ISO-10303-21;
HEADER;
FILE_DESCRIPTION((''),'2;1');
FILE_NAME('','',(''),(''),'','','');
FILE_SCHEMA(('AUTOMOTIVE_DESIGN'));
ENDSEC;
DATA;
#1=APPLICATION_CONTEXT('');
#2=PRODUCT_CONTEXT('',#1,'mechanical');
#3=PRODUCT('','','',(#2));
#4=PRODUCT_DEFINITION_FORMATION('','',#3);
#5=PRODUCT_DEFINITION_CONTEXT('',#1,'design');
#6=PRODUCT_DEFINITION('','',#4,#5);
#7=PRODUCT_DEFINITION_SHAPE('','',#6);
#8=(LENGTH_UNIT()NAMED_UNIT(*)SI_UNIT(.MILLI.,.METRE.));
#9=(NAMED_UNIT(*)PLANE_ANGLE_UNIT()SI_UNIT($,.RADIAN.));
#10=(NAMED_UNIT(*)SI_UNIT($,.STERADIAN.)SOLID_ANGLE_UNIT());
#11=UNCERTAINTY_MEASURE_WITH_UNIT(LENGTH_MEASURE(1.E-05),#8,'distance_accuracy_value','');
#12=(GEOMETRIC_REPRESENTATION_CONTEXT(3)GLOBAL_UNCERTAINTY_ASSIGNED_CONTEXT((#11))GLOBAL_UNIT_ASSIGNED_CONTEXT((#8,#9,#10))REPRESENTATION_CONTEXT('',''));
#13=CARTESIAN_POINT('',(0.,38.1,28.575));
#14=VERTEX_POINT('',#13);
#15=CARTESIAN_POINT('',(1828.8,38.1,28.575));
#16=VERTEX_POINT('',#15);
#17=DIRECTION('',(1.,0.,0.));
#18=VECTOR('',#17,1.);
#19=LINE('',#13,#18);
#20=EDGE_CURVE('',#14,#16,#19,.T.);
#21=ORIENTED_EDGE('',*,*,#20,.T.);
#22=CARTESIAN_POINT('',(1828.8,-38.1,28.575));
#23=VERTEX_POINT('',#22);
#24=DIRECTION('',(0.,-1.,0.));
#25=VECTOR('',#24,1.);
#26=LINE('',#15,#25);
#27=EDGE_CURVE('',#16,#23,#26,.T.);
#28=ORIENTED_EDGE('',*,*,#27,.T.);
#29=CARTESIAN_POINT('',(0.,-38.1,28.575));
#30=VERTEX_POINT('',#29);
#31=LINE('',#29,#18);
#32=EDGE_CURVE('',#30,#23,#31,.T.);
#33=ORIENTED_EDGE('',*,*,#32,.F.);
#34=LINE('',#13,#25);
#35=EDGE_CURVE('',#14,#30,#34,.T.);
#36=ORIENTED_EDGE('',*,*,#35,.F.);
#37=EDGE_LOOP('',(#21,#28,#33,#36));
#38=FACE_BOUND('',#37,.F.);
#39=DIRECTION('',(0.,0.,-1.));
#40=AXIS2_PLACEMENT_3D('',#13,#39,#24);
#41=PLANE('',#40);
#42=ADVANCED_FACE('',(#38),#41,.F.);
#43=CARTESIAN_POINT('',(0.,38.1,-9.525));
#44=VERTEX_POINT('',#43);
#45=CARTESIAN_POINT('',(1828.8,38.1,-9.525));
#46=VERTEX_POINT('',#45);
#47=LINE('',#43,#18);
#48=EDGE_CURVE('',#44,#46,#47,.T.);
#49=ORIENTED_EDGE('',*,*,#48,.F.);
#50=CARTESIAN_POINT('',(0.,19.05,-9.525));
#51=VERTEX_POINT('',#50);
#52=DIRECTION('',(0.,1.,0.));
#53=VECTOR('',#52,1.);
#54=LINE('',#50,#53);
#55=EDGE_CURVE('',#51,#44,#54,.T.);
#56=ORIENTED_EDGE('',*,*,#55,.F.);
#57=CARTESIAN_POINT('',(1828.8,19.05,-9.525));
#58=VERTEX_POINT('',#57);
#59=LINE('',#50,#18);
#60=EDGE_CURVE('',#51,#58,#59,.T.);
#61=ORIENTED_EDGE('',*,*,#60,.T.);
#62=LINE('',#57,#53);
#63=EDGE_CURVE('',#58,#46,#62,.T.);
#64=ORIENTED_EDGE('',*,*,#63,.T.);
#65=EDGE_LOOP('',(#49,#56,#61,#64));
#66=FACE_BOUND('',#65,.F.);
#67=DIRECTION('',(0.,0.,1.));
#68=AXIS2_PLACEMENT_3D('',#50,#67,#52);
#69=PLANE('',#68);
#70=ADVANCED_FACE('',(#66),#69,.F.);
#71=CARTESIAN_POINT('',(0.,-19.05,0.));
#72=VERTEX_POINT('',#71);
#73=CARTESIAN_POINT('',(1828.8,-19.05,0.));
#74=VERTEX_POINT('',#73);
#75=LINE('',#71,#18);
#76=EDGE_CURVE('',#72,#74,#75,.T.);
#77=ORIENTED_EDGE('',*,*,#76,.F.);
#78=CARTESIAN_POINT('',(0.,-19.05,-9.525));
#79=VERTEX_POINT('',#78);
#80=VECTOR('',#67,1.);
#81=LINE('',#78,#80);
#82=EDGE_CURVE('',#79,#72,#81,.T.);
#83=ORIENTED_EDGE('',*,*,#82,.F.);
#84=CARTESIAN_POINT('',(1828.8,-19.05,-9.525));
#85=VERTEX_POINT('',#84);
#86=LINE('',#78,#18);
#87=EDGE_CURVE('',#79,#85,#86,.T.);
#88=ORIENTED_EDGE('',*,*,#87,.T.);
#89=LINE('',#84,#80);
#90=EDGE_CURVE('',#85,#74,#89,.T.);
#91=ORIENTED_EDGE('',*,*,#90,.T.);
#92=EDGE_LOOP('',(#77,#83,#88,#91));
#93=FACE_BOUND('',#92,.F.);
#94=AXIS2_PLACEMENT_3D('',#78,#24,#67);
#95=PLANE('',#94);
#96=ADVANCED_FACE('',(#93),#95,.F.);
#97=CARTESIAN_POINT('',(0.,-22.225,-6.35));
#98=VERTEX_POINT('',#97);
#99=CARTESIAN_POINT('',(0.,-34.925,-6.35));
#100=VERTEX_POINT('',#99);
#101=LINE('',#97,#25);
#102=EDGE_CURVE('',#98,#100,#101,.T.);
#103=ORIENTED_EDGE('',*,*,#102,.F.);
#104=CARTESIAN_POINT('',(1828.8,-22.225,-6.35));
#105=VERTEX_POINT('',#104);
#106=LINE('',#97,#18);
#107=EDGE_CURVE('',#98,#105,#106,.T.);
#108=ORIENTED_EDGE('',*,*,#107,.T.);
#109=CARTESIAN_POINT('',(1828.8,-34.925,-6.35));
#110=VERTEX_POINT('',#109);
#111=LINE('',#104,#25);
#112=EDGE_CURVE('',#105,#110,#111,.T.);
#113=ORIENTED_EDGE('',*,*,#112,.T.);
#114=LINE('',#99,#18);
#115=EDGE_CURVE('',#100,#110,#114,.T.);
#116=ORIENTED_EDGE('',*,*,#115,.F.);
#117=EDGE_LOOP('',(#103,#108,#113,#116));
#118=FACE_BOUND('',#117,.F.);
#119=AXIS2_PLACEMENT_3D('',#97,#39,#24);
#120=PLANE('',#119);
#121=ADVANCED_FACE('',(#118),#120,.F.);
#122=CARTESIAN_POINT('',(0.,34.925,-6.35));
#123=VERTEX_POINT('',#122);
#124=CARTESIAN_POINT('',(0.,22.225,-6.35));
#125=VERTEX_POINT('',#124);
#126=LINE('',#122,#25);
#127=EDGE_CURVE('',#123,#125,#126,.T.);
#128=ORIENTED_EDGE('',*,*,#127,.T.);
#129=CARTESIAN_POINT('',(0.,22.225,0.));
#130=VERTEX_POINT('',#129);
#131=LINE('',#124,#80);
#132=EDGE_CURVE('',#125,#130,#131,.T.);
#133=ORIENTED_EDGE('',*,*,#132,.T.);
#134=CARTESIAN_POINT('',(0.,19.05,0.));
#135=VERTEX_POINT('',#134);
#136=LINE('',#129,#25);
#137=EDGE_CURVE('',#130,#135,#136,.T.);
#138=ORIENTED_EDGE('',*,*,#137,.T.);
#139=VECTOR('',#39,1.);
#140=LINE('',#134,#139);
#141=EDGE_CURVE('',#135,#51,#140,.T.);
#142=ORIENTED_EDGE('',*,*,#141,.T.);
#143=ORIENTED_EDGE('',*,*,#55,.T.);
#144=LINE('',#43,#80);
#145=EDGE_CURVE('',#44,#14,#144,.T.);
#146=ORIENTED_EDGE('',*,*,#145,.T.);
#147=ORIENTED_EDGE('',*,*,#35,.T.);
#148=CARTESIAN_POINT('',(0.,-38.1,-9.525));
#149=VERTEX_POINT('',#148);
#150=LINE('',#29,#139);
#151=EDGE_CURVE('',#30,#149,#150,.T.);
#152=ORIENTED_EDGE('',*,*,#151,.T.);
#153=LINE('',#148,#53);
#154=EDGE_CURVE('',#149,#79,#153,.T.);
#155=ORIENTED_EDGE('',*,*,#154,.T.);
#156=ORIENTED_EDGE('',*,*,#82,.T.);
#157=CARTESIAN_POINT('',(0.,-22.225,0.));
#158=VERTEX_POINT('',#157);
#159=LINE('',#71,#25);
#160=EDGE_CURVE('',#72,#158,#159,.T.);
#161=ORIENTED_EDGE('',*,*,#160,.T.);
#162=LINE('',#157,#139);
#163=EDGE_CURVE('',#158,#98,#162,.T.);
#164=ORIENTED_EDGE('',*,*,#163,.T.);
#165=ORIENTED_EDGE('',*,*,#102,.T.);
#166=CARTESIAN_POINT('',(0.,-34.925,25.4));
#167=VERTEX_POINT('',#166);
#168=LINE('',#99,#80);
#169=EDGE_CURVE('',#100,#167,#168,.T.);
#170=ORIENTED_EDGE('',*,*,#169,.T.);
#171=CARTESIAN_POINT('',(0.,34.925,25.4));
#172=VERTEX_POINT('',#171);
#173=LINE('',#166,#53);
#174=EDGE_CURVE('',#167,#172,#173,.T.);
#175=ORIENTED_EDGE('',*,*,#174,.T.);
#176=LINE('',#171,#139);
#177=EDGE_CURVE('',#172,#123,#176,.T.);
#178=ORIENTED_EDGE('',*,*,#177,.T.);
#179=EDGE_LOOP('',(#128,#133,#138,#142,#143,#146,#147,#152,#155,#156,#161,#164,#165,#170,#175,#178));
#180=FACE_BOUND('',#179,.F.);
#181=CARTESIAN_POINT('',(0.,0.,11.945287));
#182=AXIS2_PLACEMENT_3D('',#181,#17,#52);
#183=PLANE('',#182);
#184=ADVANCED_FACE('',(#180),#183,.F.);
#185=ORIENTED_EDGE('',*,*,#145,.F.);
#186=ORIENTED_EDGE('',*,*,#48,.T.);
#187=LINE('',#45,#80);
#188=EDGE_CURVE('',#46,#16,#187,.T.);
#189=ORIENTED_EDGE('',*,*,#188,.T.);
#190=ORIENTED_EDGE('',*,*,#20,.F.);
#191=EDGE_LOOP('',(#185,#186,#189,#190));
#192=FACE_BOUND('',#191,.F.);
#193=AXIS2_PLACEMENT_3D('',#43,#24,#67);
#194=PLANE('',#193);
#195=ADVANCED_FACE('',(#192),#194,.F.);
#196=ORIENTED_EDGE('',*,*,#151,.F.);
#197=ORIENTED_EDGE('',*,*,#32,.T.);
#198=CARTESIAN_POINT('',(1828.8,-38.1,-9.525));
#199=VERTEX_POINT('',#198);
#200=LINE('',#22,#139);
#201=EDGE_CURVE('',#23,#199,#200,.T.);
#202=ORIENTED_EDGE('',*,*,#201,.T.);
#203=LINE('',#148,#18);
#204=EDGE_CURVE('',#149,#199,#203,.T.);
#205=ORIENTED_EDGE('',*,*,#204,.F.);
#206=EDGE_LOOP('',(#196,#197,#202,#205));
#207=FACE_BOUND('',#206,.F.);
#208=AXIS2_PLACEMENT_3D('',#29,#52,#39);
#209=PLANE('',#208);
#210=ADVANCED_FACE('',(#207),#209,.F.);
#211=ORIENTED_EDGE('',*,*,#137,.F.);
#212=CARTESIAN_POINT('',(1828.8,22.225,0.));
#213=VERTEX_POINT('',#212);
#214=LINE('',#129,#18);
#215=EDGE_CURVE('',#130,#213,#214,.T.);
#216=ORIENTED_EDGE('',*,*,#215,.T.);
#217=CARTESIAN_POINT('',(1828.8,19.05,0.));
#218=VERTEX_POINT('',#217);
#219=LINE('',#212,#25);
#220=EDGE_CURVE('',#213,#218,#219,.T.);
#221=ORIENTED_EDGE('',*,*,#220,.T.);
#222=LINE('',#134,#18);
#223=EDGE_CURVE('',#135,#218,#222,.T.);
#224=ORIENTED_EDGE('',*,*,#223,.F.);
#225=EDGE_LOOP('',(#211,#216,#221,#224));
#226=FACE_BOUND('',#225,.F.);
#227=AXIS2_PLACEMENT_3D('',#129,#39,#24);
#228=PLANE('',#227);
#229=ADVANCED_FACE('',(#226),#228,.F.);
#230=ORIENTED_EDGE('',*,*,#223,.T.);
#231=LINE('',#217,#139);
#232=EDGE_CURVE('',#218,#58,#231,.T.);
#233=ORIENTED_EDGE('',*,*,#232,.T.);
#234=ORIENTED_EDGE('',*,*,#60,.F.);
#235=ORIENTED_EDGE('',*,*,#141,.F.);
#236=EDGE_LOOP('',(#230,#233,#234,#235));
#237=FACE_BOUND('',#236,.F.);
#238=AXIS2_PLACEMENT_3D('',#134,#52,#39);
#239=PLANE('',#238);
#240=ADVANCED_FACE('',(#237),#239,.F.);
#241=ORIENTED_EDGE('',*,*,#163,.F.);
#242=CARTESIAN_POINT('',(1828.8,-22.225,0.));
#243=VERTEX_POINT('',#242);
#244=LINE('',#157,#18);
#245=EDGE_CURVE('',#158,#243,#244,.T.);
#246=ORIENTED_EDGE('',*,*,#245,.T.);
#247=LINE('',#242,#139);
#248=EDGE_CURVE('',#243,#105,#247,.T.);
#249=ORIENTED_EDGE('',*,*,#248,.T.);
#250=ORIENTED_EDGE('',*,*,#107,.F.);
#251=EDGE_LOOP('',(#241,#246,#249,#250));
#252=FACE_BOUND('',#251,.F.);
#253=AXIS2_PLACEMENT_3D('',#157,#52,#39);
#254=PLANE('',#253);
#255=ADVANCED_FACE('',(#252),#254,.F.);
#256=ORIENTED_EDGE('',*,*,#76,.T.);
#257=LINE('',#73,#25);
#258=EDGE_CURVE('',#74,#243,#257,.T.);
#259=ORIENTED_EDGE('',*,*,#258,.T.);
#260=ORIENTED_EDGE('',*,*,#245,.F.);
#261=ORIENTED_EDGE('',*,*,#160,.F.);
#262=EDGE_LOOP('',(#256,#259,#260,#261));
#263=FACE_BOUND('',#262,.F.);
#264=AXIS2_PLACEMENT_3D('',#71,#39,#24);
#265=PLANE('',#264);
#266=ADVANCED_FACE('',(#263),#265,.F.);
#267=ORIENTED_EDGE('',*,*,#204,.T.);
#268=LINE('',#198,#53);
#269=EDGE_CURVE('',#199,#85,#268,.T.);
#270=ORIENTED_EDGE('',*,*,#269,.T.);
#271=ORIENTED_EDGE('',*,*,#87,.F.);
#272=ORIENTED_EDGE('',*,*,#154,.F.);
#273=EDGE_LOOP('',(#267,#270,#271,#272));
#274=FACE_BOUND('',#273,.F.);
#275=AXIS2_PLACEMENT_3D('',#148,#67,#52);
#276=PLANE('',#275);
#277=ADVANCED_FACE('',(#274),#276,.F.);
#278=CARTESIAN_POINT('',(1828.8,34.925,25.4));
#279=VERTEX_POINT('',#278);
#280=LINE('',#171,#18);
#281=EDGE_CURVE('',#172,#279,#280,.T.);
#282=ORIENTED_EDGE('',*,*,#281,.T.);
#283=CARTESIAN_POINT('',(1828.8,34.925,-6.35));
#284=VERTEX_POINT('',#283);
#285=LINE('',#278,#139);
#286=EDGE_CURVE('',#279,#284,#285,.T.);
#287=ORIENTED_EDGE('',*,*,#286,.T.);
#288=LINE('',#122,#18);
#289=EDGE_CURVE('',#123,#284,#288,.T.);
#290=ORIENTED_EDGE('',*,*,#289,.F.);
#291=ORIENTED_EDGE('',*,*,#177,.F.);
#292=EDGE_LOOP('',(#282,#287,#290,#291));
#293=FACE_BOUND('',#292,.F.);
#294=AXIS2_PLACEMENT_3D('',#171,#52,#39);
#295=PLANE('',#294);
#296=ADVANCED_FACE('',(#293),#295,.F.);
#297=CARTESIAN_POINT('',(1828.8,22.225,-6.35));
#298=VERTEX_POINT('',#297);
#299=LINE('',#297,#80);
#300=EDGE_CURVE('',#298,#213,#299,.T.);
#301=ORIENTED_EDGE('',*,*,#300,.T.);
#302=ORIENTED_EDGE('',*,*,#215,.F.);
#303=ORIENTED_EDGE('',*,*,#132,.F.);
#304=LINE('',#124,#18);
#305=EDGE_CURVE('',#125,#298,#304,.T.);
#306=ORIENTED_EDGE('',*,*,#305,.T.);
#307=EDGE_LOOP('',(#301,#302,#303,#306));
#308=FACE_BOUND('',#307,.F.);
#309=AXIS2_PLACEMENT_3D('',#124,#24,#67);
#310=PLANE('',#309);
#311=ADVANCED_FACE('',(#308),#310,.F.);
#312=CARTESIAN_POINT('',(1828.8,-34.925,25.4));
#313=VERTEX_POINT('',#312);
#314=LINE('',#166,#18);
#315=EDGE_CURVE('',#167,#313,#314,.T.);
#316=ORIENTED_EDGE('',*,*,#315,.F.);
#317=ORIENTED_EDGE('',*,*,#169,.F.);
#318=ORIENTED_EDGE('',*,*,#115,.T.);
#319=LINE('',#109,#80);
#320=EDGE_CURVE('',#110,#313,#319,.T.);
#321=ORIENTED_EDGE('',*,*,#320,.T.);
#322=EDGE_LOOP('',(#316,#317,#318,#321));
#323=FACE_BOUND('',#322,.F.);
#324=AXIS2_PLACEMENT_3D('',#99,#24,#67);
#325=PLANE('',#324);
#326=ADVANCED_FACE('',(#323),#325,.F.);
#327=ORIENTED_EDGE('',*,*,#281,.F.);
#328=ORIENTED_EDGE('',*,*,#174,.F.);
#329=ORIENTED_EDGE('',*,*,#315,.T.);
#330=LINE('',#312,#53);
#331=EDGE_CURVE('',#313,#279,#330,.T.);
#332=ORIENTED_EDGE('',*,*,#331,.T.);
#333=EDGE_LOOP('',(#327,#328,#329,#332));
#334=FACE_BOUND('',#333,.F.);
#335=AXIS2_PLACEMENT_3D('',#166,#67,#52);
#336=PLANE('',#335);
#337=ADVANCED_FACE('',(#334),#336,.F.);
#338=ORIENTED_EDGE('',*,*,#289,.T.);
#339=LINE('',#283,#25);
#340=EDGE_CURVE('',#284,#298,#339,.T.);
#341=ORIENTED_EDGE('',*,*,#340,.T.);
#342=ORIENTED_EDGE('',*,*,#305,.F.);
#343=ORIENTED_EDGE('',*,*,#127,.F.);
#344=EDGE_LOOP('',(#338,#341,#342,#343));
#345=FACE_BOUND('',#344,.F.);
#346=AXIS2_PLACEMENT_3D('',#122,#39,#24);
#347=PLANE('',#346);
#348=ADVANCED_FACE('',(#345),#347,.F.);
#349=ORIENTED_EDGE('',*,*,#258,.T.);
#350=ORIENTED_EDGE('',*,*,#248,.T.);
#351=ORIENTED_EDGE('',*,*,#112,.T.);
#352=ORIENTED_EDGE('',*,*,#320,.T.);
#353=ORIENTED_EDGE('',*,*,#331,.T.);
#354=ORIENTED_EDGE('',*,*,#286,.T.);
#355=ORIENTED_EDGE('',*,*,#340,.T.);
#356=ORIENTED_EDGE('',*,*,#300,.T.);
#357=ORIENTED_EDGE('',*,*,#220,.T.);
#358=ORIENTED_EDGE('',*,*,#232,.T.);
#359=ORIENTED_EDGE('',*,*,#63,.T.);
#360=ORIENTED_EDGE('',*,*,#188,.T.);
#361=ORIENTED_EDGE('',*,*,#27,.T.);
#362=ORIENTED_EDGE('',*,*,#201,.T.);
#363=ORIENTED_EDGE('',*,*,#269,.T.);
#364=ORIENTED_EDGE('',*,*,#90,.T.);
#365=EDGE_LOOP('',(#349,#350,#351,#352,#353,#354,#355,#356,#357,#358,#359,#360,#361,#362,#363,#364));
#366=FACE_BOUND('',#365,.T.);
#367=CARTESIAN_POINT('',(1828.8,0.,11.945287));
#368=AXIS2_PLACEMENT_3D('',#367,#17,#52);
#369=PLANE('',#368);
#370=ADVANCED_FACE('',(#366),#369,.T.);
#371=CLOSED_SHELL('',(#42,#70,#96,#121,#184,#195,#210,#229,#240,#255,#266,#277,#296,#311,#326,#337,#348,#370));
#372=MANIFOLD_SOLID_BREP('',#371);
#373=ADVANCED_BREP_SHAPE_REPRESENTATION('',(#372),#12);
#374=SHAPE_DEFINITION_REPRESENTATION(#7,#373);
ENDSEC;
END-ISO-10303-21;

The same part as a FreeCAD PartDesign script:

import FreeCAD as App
import Part
import Sketcher
Q = App.Units.Quantity

doc = App.newDocument("Part")
body = doc.addObject("PartDesign::Body", "Body")

sketch1 = body.newObject("Sketcher::SketchObject", "Sketch")
sketch1.AttachmentSupport = (doc.getObject("YZ_Plane"), [""])
sketch1.MapMode = "FlatFace"
sketch1.addGeometry(Part.LineSegment(App.Vector(-19.1, -9.5, 0), App.Vector(-19.1, 0, 0)), False)
sketch1.addGeometry(Part.LineSegment(App.Vector(-19.1, 0, 0), App.Vector(-22.2, 0, 0)), False)
sketch1.addGeometry(Part.LineSegment(App.Vector(-22.2, 0, 0), App.Vector(-22.2, -6.3, 0)), False)
sketch1.addGeometry(Part.LineSegment(App.Vector(-22.2, -6.3, 0), App.Vector(-34.9, -6.3, 0)), False)
sketch1.addGeometry(Part.LineSegment(App.Vector(-34.9, -6.3, 0), App.Vector(-34.9, 25.4, 0)), False)
sketch1.addGeometry(Part.LineSegment(App.Vector(-34.9, 25.4, 0), App.Vector(34.9, 25.4, 0)), False)
sketch1.addGeometry(Part.LineSegment(App.Vector(34.9, 25.4, 0), App.Vector(34.9, -6.3, 0)), False)
sketch1.addGeometry(Part.LineSegment(App.Vector(34.9, -6.3, 0), App.Vector(22.2, -6.3, 0)), False)
sketch1.addGeometry(Part.LineSegment(App.Vector(22.2, -6.3, 0), App.Vector(22.2, 0, 0)), False)
sketch1.addGeometry(Part.LineSegment(App.Vector(22.2, 0, 0), App.Vector(19.1, 0, 0)), False)
sketch1.addGeometry(Part.LineSegment(App.Vector(19.1, 0, 0), App.Vector(19.1, -9.5, 0)), False)
sketch1.addGeometry(Part.LineSegment(App.Vector(19.1, -9.5, 0), App.Vector(38.1, -9.5, 0)), False)
sketch1.addGeometry(Part.LineSegment(App.Vector(38.1, -9.5, 0), App.Vector(38.1, 28.6, 0)), False)
sketch1.addGeometry(Part.LineSegment(App.Vector(38.1, 28.6, 0), App.Vector(-38.1, 28.6, 0)), False)
sketch1.addGeometry(Part.LineSegment(App.Vector(-38.1, 28.6, 0), App.Vector(-38.1, -9.5, 0)), False)
sketch1.addGeometry(Part.LineSegment(App.Vector(-38.1, -9.5, 0), App.Vector(-19.1, -9.5, 0)), False)
sketch1.addConstraint(Sketcher.Constraint("Coincident", 0, 2, 1, 1))
sketch1.addConstraint(Sketcher.Constraint("Coincident", 1, 2, 2, 1))
sketch1.addConstraint(Sketcher.Constraint("Coincident", 2, 2, 3, 1))
sketch1.addConstraint(Sketcher.Constraint("Coincident", 3, 2, 4, 1))
sketch1.addConstraint(Sketcher.Constraint("Coincident", 4, 2, 5, 1))
sketch1.addConstraint(Sketcher.Constraint("Coincident", 5, 2, 6, 1))
sketch1.addConstraint(Sketcher.Constraint("Coincident", 6, 2, 7, 1))
sketch1.addConstraint(Sketcher.Constraint("Coincident", 7, 2, 8, 1))
sketch1.addConstraint(Sketcher.Constraint("Coincident", 8, 2, 9, 1))
sketch1.addConstraint(Sketcher.Constraint("Coincident", 9, 2, 10, 1))
sketch1.addConstraint(Sketcher.Constraint("Coincident", 10, 2, 11, 1))
sketch1.addConstraint(Sketcher.Constraint("Coincident", 11, 2, 12, 1))
sketch1.addConstraint(Sketcher.Constraint("Coincident", 12, 2, 13, 1))
sketch1.addConstraint(Sketcher.Constraint("Coincident", 13, 2, 14, 1))
sketch1.addConstraint(Sketcher.Constraint("Coincident", 14, 2, 15, 1))
sketch1.addConstraint(Sketcher.Constraint("Coincident", 15, 2, 0, 1))
sketch1.addConstraint(Sketcher.Constraint("Vertical", 0))
sketch1.addConstraint(Sketcher.Constraint("Horizontal", 1))
sketch1.addConstraint(Sketcher.Constraint("Vertical", 2))
sketch1.addConstraint(Sketcher.Constraint("Horizontal", 3))
sketch1.addConstraint(Sketcher.Constraint("Vertical", 4))
sketch1.addConstraint(Sketcher.Constraint("Horizontal", 5))
sketch1.addConstraint(Sketcher.Constraint("Vertical", 6))
sketch1.addConstraint(Sketcher.Constraint("Horizontal", 7))
sketch1.addConstraint(Sketcher.Constraint("Vertical", 8))
sketch1.addConstraint(Sketcher.Constraint("Horizontal", 9))
sketch1.addConstraint(Sketcher.Constraint("Vertical", 10))
sketch1.addConstraint(Sketcher.Constraint("Horizontal", 11))
sketch1.addConstraint(Sketcher.Constraint("Vertical", 12))
sketch1.addConstraint(Sketcher.Constraint("Horizontal", 13))
sketch1.addConstraint(Sketcher.Constraint("Vertical", 14))
sketch1.addConstraint(Sketcher.Constraint("Horizontal", 15))
sketch1.addConstraint(Sketcher.Constraint("Symmetric", 1, 2, 8, 2, -1, 1))
sketch1.addConstraint(Sketcher.Constraint("Symmetric", 3, 2, 6, 2, -2))
sketch1.addConstraint(Sketcher.Constraint("Symmetric", 0, 2, 9, 2, -2))
sketch1.addConstraint(Sketcher.Constraint("Symmetric", 11, 2, 14, 2, -2))
sketch1.addConstraint(Sketcher.Constraint("DistanceX", 13, 2, 13, 1, Q("3 in")))
sketch1.addConstraint(Sketcher.Constraint("DistanceX", 3, 2, 3, 1, Q("0.5 in")))
sketch1.addConstraint(Sketcher.Constraint("DistanceY", 12, 1, 12, 2, Q("1.5 in")))
sketch1.addConstraint(Sketcher.Constraint("DistanceY", -1, 1, 4, 2, Q("1 in")))
sketch1.addConstraint(Sketcher.Constraint("DistanceX", 5, 1, 5, 2, Q("2.75 in")))
sketch1.addConstraint(Sketcher.Constraint("DistanceX", 11, 1, 11, 2, Q("0.75 in")))
sketch1.addConstraint(Sketcher.Constraint("DistanceY", 2, 2, 2, 1, Q("0.25 in")))
sketch1.addConstraint(Sketcher.Constraint("DistanceY", 0, 1, 0, 2, Q("0.375 in")))
pad1 = body.newObject("PartDesign::Pad", "Pad")
pad1.Profile = sketch1
pad1.Length = Q("72 in")

doc.recompute()
